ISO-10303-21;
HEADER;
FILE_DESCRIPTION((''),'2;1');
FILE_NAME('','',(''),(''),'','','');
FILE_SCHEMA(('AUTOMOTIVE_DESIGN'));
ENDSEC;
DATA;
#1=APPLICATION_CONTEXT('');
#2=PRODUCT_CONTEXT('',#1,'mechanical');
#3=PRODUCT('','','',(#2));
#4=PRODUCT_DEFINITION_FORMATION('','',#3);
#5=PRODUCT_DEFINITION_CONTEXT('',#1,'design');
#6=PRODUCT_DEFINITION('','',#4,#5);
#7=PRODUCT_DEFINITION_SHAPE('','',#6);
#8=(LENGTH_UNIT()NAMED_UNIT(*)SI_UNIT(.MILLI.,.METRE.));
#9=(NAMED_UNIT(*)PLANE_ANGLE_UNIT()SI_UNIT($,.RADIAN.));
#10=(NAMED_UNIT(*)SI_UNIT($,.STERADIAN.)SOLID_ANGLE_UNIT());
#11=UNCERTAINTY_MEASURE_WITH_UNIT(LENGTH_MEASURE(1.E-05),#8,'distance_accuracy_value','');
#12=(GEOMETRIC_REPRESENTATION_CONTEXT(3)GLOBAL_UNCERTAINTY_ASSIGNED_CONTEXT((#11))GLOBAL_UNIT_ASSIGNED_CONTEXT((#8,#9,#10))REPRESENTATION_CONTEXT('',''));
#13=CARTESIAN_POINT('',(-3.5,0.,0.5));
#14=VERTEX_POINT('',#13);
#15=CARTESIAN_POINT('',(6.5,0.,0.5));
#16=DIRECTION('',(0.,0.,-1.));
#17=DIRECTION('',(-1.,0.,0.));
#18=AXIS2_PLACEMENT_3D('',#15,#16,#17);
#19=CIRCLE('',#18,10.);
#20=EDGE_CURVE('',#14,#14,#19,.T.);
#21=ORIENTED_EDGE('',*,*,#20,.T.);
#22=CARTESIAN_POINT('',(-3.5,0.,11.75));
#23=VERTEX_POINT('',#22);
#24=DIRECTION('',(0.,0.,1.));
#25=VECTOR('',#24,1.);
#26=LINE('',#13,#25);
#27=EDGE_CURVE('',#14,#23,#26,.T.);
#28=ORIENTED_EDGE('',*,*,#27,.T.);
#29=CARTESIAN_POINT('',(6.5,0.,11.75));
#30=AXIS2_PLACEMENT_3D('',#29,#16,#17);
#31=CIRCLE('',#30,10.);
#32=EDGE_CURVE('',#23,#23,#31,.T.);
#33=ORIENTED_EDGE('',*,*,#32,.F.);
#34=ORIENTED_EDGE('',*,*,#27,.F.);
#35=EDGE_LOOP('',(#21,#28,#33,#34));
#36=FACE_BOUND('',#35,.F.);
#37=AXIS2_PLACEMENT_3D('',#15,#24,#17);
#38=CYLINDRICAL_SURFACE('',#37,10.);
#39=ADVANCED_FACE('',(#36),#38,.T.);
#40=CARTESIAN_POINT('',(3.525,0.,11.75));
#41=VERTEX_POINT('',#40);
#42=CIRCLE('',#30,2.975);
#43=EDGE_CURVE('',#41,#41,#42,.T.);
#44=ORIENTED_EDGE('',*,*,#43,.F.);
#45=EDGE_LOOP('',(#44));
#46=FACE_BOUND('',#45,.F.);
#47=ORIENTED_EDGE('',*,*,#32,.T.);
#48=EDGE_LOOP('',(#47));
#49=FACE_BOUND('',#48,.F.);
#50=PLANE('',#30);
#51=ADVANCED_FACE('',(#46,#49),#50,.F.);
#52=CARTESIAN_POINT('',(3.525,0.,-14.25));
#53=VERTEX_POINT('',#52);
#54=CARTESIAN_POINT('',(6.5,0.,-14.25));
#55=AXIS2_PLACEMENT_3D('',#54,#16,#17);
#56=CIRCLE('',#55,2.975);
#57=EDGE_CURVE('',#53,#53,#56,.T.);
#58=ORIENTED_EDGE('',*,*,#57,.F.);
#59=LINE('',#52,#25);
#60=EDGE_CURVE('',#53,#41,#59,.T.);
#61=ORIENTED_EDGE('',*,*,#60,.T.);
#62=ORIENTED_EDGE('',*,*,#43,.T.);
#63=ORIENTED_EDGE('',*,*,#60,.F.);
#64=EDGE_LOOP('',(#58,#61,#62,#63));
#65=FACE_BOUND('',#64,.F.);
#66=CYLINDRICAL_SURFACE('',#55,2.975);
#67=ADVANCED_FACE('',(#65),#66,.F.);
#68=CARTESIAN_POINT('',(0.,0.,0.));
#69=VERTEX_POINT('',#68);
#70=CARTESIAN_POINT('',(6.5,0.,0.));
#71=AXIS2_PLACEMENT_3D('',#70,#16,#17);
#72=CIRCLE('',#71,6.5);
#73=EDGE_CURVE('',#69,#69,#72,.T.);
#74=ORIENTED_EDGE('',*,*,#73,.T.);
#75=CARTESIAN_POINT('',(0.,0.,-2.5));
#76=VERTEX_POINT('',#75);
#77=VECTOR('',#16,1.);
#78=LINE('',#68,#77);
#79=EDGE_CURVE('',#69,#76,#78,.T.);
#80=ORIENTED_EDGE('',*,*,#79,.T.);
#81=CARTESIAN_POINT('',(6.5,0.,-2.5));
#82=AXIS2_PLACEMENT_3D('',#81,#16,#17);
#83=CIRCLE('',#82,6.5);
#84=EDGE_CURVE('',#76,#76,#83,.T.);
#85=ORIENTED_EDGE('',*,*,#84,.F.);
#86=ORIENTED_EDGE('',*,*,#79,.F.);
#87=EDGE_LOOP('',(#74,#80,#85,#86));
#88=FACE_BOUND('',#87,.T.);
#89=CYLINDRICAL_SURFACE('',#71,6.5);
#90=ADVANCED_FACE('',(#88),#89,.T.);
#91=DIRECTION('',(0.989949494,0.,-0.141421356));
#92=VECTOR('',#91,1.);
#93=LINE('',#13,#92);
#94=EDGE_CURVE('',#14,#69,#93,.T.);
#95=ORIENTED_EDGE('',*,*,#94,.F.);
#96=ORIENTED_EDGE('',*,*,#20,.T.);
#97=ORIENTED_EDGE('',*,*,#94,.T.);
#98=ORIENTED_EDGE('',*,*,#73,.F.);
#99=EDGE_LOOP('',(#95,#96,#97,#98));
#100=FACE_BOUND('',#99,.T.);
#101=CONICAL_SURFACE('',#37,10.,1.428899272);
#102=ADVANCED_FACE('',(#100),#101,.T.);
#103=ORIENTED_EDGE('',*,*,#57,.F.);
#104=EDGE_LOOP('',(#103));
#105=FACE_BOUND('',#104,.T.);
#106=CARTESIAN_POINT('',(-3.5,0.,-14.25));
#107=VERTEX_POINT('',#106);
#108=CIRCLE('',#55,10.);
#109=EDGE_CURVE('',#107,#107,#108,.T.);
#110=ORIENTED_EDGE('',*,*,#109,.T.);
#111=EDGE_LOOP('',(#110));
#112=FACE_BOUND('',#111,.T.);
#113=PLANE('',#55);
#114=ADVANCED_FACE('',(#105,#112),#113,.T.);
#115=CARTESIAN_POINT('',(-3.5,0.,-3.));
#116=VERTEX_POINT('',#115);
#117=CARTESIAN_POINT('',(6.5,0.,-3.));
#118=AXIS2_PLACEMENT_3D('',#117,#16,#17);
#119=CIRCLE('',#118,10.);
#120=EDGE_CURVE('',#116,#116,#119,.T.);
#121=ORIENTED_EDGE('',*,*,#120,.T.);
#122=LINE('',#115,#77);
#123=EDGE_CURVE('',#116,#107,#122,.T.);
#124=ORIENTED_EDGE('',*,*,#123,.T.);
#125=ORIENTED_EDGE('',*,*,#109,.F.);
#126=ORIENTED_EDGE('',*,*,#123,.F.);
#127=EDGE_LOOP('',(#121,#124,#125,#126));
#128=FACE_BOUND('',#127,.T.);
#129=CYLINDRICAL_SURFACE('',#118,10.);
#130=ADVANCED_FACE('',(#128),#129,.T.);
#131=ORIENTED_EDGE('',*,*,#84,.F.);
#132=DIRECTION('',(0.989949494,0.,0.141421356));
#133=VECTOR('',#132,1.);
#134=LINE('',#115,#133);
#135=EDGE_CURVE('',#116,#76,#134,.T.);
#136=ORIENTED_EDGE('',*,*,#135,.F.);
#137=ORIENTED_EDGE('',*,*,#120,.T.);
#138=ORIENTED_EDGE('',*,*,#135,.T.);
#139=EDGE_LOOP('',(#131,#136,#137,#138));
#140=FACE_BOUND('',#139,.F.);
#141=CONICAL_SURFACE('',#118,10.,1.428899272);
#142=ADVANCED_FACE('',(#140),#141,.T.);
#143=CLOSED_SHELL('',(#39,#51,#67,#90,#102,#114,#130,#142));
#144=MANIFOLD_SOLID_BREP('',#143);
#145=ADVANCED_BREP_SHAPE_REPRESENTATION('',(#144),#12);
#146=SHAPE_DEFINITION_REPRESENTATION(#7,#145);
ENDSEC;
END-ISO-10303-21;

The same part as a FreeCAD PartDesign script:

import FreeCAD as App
import Part
import Sketcher

V = App.Vector


def add_polygon(sketch, points):
    """Adds a closed chain of lines whose ends are joined by coincident constraints."""
    first, n = sketch.GeometryCount, len(points)
    for a, b in zip(points, points[1:] + points[:1]):
        sketch.addGeometry(Part.LineSegment(App.Vector(*a, 0), App.Vector(*b, 0)), False)
    for i in range(n):
        sketch.addConstraint(Sketcher.Constraint("Coincident", first + i, 2, first + (i + 1) % n, 1))

doc = App.newDocument("Part")
body = doc.addObject("PartDesign::Body", "Body")

# Sketch on XZ plane
sketch1 = body.newObject("Sketcher::SketchObject", "Sketch")
sketch1.AttachmentSupport = (doc.getObject("XZ_Plane"), [""])
sketch1.MapMode = "FlatFace"
add_polygon(sketch1, [(0, -2.5), (0, 0), (-3.5, 0.5), (-3.5, 11.8), (6.5, 11.8), (6.5, -14.2), (-3.5, -14.2), (-3.5, -3)])  # lines 0-7
sketch1.addGeometry(Part.LineSegment(V(6.5, 11.8, 0), V(6.5, -14.2, 0)), True)  # axis
sketch1.addConstraint([
    Sketcher.Constraint("Vertical", 0),
    Sketcher.Constraint("Vertical", 2),
    Sketcher.Constraint("Horizontal", 3),
    Sketcher.Constraint("Vertical", 4),
    Sketcher.Constraint("Horizontal", 5),
    Sketcher.Constraint("Vertical", 6),
    Sketcher.Constraint("Vertical", 8),
    Sketcher.Constraint("Coincident", 0, 2, -1, 1),
    Sketcher.Constraint("Coincident", 8, 1, 3, 2),
    Sketcher.Constraint("Horizontal", 5, 2, 8, 2),
    Sketcher.Constraint("Vertical", 2, 2, 5, 2),
    Sketcher.Constraint("Equal", 2, 6),
    Sketcher.Constraint("Equal", 1, 7),
    Sketcher.Constraint("DistanceX", 3, 1, 3, 2, 10.0),
    Sketcher.Constraint("DistanceY", 0, 1, 0, 2, 2.5),
    Sketcher.Constraint("DistanceY", 2, 1, 2, 2, 11.25),
    Sketcher.Constraint("DistanceX", 1, 2, -1, 1, 3.5),
    Sketcher.Constraint("DistanceY", 6, 2, 1, 2, 3.5),
])
revolution = body.newObject("PartDesign::Revolution", "Revolution")
revolution.Profile = sketch1
revolution.ReferenceAxis = (sketch1, ["Axis0"])
revolution.Angle = 360

# Sketch on XY plane
sketch2 = body.newObject("Sketcher::SketchObject", "Sketch001")
sketch2.AttachmentSupport = (doc.getObject("XY_Plane"), [""])
sketch2.MapMode = "FlatFace"
sketch2.AttachmentOffset = App.Placement(V(0, 0, -14.25), App.Rotation())
sketch2.addGeometry(Part.Circle(V(6.5, 0, 0), V(0, 0, 1), 3), False)
sketch2.addConstraint([
    Sketcher.Constraint("PointOnObject", 0, 3, -1),
    Sketcher.Constraint("Diameter", 0, 5.95),
    Sketcher.Constraint("DistanceX", -1, 1, 0, 3, 6.5),
])
pocket1 = body.newObject("PartDesign::Pocket", "Pocket")
pocket1.Profile = sketch2
pocket1.Length = 26
pocket1.Reversed = True

doc.recompute()
